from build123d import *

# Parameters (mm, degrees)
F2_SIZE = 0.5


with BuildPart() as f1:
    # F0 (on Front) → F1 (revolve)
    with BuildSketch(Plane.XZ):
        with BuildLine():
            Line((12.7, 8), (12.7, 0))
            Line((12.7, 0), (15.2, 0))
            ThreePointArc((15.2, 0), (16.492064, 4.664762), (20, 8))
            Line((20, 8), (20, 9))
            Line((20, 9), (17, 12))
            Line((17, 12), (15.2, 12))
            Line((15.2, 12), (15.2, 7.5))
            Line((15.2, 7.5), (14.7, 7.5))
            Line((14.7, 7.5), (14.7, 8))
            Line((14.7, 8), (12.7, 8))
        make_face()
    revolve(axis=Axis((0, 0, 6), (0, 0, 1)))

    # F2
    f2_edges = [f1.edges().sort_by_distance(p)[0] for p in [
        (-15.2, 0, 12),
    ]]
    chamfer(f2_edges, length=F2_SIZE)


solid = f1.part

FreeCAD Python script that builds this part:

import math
import FreeCAD as App
import Part
import Sketcher

V = App.Vector
Q = App.Units.Quantity


def edges_at(feature, points):
    """Names of the edges that pass closest to the given points."""
    edges = feature.Shape.Edges
    near = lambda p: min(range(len(edges)), key=lambda i: edges[i].distToShape(Part.Vertex(*p))[0])
    return sorted({f"Edge{near(p) + 1}" for p in points})

doc = App.newDocument("Part")
body = doc.addObject("PartDesign::Body", "Body")

# Sketch on XZ plane
sketch1 = body.newObject("Sketcher::SketchObject", "Sketch")
sketch1.AttachmentSupport = (doc.getObject("XZ_Plane"), [""])
sketch1.MapMode = "FlatFace"
sketch1.addGeometry([
    Part.LineSegment(V(12.7, 8, 0), V(12.7, 0, 0)),  # 0
    Part.LineSegment(V(12.7, 0, 0), V(15.2, 0, 0)),  # 1
    Part.ArcOfCircle(Part.Circle(V(24.3, 0, 0), V(0, 0, 1), 9.1), math.radians(118), math.radians(180)),  # 2
    Part.LineSegment(V(20, 8, 0), V(20, 9, 0)),  # 3
    Part.LineSegment(V(20, 9, 0), V(17, 12, 0)),  # 4
    Part.LineSegment(V(17, 12, 0), V(15.2, 12, 0)),  # 5
    Part.LineSegment(V(15.2, 12, 0), V(15.2, 7.5, 0)),  # 6
    Part.LineSegment(V(15.2, 7.5, 0), V(14.7, 7.5, 0)),  # 7
    Part.LineSegment(V(14.7, 7.5, 0), V(14.7, 8, 0)),  # 8
    Part.LineSegment(V(14.7, 8, 0), V(12.7, 8, 0)),  # 9
], False)
sketch1.addConstraint([
    Sketcher.Constraint("Coincident", 0, 2, 1, 1),
    Sketcher.Constraint("Coincident", 1, 2, 2, 2),
    Sketcher.Constraint("Coincident", 2, 1, 3, 1),
    Sketcher.Constraint("Coincident", 3, 2, 4, 1),
    Sketcher.Constraint("Coincident", 4, 2, 5, 1),
    Sketcher.Constraint("Coincident", 5, 2, 6, 1),
    Sketcher.Constraint("Coincident", 6, 2, 7, 1),
    Sketcher.Constraint("Coincident", 7, 2, 8, 1),
    Sketcher.Constraint("Coincident", 8, 2, 9, 1),
    Sketcher.Constraint("Coincident", 9, 2, 0, 1),
    Sketcher.Constraint("Vertical", 0),
    Sketcher.Constraint("Horizontal", 1),
    Sketcher.Constraint("Vertical", 3),
    Sketcher.Constraint("Horizontal", 5),
    Sketcher.Constraint("Vertical", 6),
    Sketcher.Constraint("Horizontal", 7),
    Sketcher.Constraint("Vertical", 8),
    Sketcher.Constraint("Horizontal", 9),
    Sketcher.Constraint("PointOnObject", 2, 3, -1),
    Sketcher.Constraint("PointOnObject", 0, 2, -1),
    Sketcher.Constraint("Horizontal", 2, 1, 8, 2),
    Sketcher.Constraint("Vertical", 1, 2, 5, 2),
    Sketcher.Constraint("Equal", 7, 8),
    Sketcher.Constraint("DistanceX", 9, 2, 9, 1, 2.0),
    Sketcher.Constraint("DistanceY", 0, 2, 0, 1, 8.0),
    Sketcher.Constraint("DistanceY", 3, 1, 3, 2, 1.0),
    Sketcher.Constraint("Angle", 4, Q("135 deg")),
    Sketcher.Constraint("DistanceX", 1, 1, 1, 2, 2.5),
    Sketcher.Constraint("DistanceX", 5, 2, 5, 1, 1.8),
    Sketcher.Constraint("DistanceY", 6, 2, 6, 1, 4.5),
    Sketcher.Constraint("DistanceX", -1, 1, 2, 1, 20.0),
])
revolution = body.newObject("PartDesign::Revolution", "Revolution")
revolution.Profile = sketch1
revolution.ReferenceAxis = (sketch1, ["V_Axis"])
revolution.Angle = 360
doc.recompute()

chamfer = body.newObject("PartDesign::Chamfer", "Chamfer")
chamfer.Base = (revolution, edges_at(revolution, [(-15.2, 0, 12)]))
chamfer.Size = 0.5

doc.recompute()
